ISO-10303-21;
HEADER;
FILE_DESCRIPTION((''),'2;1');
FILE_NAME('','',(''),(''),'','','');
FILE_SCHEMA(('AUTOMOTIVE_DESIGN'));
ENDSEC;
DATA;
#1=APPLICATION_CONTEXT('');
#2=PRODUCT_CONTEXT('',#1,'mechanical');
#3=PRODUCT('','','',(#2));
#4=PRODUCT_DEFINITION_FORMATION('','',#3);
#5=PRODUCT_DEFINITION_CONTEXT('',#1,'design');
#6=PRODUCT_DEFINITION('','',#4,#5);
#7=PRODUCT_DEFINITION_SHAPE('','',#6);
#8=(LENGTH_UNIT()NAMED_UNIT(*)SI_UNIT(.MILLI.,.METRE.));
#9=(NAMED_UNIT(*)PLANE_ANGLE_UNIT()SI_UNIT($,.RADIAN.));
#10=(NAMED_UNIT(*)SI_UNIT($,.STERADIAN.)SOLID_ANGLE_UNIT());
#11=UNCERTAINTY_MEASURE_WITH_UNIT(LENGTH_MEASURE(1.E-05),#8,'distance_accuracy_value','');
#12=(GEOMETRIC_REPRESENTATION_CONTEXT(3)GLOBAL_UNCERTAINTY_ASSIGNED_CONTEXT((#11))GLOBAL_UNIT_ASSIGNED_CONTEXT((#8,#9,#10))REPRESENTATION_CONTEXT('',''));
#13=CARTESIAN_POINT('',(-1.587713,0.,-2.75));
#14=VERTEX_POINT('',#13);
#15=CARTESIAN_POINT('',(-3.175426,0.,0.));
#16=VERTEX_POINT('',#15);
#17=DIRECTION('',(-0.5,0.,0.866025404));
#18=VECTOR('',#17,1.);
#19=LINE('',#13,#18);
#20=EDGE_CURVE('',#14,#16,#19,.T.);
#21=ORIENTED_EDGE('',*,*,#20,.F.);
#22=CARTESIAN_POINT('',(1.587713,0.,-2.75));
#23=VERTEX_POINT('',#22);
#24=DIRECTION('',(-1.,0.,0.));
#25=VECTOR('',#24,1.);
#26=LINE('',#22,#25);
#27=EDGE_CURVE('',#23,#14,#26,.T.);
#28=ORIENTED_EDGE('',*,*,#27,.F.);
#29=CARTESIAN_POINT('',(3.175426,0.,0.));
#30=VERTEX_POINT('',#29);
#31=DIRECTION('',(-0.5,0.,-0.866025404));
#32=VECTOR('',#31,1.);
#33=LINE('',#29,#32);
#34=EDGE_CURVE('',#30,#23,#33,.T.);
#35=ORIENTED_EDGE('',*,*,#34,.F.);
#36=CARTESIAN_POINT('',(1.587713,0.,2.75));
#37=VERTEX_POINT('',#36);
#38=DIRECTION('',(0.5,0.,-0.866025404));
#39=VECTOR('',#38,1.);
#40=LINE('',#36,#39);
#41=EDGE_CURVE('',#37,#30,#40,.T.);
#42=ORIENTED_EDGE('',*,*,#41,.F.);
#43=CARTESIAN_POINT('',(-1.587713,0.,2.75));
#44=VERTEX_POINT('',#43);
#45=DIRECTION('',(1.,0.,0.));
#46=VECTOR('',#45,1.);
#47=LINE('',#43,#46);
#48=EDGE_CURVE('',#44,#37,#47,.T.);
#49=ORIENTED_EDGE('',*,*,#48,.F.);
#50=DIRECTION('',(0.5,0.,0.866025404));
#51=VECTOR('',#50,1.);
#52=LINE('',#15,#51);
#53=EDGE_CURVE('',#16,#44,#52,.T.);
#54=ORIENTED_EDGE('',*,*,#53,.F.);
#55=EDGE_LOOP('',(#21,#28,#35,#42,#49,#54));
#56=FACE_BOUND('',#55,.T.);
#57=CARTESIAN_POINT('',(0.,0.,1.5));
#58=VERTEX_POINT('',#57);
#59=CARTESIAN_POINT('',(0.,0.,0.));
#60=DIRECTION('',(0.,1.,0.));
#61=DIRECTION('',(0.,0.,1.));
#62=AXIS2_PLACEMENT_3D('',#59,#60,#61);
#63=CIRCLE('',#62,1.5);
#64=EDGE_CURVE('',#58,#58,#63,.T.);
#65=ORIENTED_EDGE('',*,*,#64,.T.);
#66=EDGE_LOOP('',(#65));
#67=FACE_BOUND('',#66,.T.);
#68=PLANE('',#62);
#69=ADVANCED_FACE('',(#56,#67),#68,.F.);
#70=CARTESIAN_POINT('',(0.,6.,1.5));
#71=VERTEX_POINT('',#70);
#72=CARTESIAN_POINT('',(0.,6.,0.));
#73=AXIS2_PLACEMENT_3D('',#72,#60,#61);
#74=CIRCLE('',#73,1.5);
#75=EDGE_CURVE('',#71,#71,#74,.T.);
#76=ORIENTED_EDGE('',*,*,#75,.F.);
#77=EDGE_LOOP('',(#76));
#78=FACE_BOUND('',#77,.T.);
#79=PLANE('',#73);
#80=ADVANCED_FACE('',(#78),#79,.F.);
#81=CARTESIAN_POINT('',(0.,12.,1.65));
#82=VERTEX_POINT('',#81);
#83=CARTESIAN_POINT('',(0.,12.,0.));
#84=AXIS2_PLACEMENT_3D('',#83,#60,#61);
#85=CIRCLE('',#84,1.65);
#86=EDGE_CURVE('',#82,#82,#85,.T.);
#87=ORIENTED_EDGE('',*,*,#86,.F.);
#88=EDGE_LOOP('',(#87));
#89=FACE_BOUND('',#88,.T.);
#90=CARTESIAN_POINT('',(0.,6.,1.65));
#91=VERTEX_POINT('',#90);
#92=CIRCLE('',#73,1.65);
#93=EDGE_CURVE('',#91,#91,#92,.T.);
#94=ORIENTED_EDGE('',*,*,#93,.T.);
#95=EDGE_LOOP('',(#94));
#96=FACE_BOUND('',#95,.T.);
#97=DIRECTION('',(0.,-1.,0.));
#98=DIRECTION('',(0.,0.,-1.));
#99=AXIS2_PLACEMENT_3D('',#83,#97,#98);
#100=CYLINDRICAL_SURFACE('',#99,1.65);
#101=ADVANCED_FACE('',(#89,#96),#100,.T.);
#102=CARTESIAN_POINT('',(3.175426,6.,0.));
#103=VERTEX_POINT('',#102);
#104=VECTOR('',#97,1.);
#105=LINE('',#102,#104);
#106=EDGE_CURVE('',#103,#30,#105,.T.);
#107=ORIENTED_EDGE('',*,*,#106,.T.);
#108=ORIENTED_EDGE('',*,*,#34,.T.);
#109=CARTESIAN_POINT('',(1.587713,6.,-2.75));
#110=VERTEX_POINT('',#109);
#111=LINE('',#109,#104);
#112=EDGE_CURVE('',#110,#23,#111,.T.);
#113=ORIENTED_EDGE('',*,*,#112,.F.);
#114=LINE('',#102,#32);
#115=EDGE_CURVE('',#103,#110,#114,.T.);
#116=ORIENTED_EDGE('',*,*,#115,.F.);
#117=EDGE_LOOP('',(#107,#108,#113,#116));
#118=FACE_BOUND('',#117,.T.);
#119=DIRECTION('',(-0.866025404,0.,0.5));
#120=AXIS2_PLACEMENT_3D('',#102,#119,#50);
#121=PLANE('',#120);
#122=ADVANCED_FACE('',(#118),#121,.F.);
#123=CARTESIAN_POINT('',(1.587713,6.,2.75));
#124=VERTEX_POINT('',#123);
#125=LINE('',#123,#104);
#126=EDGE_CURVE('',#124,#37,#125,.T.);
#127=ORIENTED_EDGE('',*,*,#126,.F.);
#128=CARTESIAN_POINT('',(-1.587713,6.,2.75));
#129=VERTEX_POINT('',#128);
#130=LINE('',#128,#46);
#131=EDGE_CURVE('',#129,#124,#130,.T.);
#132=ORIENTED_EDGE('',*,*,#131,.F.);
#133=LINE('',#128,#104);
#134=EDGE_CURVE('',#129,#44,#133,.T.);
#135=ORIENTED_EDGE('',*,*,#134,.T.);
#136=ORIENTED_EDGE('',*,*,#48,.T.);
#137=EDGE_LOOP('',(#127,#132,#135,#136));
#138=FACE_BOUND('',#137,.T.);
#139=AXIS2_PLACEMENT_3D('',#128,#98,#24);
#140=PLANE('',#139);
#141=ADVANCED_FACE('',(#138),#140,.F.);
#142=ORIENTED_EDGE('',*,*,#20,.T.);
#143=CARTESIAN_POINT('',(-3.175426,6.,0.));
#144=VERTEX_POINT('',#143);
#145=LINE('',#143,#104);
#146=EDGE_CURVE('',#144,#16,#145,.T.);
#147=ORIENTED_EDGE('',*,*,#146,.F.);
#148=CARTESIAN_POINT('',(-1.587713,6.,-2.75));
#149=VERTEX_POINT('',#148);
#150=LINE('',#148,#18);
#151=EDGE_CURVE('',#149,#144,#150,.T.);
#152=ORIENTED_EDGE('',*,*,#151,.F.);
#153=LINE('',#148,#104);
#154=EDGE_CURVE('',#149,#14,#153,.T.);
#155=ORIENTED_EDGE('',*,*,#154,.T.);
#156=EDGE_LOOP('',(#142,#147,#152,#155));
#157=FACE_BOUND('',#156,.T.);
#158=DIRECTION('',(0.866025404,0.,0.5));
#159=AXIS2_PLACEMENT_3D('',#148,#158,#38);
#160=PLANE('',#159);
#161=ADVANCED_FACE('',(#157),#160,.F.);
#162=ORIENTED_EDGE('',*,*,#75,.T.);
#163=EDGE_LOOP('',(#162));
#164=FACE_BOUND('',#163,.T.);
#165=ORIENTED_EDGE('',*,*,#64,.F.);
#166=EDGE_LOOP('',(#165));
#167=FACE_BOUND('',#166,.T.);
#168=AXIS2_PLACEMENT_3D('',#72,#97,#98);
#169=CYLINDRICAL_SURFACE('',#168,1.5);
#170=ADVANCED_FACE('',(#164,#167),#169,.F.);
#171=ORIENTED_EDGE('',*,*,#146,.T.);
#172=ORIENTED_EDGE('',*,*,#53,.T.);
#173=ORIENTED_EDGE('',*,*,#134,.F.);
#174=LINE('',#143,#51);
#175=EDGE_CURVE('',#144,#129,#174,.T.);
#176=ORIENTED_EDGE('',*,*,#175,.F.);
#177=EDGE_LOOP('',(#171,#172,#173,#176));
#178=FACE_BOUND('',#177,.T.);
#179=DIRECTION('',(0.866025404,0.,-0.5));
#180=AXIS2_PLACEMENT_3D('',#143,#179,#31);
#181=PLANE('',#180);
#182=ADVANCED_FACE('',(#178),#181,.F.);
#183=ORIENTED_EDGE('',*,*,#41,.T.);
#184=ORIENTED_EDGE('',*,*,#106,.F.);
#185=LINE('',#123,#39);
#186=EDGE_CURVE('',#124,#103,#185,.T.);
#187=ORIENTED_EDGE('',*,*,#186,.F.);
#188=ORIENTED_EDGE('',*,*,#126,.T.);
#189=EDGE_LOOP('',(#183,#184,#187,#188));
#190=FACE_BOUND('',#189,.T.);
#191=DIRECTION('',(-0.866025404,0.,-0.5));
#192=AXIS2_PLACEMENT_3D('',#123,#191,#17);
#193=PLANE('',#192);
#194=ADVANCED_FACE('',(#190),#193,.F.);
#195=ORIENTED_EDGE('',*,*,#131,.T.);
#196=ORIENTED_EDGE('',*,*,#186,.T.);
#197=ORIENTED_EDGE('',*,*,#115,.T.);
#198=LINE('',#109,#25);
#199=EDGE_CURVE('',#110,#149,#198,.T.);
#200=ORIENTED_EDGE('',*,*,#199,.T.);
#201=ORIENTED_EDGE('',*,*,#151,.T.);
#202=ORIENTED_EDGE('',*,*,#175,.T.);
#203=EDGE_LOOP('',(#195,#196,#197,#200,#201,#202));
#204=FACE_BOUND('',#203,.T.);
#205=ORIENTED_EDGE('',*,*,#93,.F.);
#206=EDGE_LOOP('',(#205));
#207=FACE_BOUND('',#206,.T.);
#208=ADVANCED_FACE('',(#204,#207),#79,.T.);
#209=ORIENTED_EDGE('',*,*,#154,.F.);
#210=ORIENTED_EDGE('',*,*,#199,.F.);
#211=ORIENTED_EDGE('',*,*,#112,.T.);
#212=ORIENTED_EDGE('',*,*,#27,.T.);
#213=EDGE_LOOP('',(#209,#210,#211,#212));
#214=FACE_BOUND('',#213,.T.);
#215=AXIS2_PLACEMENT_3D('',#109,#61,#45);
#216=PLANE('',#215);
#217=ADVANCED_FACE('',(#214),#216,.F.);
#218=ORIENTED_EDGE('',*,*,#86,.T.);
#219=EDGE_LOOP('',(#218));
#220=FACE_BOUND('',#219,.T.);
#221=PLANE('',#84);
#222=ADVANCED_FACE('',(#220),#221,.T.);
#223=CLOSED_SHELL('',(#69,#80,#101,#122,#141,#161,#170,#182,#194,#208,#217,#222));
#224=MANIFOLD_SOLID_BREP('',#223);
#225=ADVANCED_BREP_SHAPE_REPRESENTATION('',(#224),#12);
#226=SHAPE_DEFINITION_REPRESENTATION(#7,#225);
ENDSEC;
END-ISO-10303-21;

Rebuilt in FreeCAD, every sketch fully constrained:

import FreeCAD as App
import Part
import Sketcher

V = App.Vector
Q = App.Units.Quantity


def add_polygon(sketch, points):
    """Adds a closed chain of lines whose ends are joined by coincident constraints."""
    first, n = sketch.GeometryCount, len(points)
    for a, b in zip(points, points[1:] + points[:1]):
        sketch.addGeometry(Part.LineSegment(App.Vector(*a, 0), App.Vector(*b, 0)), False)
    for i in range(n):
        sketch.addConstraint(Sketcher.Constraint("Coincident", first + i, 2, first + (i + 1) % n, 1))

doc = App.newDocument("Part")
body = doc.addObject("PartDesign::Body", "Body")

# Sketch on XZ plane
sketch1 = body.newObject("Sketcher::SketchObject", "Sketch")
sketch1.AttachmentSupport = (doc.getObject("XZ_Plane"), [""])
sketch1.MapMode = "FlatFace"
add_polygon(sketch1, [(1.6, -2.8), (-1.6, -2.8), (-3.2, 0), (-1.6, 2.8), (1.6, 2.8), (3.2, 0)])  # lines 0-5
sketch1.addGeometry(Part.Circle(V(0, 0, 0), V(0, 0, 1), 1.5), False)  # 6
sketch1.addConstraint(Sketcher.Constraint("Horizontal", 0))
sketch1.addConstraint(Sketcher.Constraint("Horizontal", 3))
sketch1.addConstraint(Sketcher.Constraint("Coincident", 6, 3, -1, 1))
sketch1.addConstraint(Sketcher.Constraint("Symmetric", 0, 2, 3, 2, -1, 1))
sketch1.addConstraint(Sketcher.Constraint("Symmetric", 1, 2, 4, 2, -1, 1))
sketch1.addConstraint(Sketcher.Constraint("PointOnObject", 1, 2, -1))
sketch1.addConstraint(Sketcher.Constraint("Parallel", 2, 5))
sketch1.addConstraint(Sketcher.Constraint("Vertical", 0, 2, 2, 2))
sketch1.addConstraint(Sketcher.Constraint("Diameter", 6, 3.0))
sketch1.addConstraint(Sketcher.Constraint("Angle", 1, Q("120 deg")))
sketch1.addConstraint(Sketcher.Constraint("DistanceY", 0, 2, 2, 2, 5.5))
sketch1.addConstraint(Sketcher.Constraint("DistanceX", 0, 2, 0, 1, 3.175426))
pad1 = body.newObject("PartDesign::Pad", "Pad")
pad1.Profile = sketch1
pad1.Length = 6
pad1.Reversed = True

# Sketch on XZ plane
sketch2 = body.newObject("Sketcher::SketchObject", "Sketch001")
sketch2.AttachmentSupport = (doc.getObject("XZ_Plane"), [""])
sketch2.MapMode = "FlatFace"
sketch2.AttachmentOffset = App.Placement(V(0, 0, -6), App.Rotation())
sketch2.addGeometry(Part.Circle(V(0, 0, 0), V(0, 0, 1), 1.6), False)
sketch2.addConstraint(Sketcher.Constraint("Coincident", 0, 3, -1, 1))
sketch2.addConstraint(Sketcher.Constraint("Diameter", 0, 3.3))
pad2 = body.newObject("PartDesign::Pad", "Pad001")
pad2.Profile = sketch2
pad2.Length = 6
pad2.Reversed = True

doc.recompute()
